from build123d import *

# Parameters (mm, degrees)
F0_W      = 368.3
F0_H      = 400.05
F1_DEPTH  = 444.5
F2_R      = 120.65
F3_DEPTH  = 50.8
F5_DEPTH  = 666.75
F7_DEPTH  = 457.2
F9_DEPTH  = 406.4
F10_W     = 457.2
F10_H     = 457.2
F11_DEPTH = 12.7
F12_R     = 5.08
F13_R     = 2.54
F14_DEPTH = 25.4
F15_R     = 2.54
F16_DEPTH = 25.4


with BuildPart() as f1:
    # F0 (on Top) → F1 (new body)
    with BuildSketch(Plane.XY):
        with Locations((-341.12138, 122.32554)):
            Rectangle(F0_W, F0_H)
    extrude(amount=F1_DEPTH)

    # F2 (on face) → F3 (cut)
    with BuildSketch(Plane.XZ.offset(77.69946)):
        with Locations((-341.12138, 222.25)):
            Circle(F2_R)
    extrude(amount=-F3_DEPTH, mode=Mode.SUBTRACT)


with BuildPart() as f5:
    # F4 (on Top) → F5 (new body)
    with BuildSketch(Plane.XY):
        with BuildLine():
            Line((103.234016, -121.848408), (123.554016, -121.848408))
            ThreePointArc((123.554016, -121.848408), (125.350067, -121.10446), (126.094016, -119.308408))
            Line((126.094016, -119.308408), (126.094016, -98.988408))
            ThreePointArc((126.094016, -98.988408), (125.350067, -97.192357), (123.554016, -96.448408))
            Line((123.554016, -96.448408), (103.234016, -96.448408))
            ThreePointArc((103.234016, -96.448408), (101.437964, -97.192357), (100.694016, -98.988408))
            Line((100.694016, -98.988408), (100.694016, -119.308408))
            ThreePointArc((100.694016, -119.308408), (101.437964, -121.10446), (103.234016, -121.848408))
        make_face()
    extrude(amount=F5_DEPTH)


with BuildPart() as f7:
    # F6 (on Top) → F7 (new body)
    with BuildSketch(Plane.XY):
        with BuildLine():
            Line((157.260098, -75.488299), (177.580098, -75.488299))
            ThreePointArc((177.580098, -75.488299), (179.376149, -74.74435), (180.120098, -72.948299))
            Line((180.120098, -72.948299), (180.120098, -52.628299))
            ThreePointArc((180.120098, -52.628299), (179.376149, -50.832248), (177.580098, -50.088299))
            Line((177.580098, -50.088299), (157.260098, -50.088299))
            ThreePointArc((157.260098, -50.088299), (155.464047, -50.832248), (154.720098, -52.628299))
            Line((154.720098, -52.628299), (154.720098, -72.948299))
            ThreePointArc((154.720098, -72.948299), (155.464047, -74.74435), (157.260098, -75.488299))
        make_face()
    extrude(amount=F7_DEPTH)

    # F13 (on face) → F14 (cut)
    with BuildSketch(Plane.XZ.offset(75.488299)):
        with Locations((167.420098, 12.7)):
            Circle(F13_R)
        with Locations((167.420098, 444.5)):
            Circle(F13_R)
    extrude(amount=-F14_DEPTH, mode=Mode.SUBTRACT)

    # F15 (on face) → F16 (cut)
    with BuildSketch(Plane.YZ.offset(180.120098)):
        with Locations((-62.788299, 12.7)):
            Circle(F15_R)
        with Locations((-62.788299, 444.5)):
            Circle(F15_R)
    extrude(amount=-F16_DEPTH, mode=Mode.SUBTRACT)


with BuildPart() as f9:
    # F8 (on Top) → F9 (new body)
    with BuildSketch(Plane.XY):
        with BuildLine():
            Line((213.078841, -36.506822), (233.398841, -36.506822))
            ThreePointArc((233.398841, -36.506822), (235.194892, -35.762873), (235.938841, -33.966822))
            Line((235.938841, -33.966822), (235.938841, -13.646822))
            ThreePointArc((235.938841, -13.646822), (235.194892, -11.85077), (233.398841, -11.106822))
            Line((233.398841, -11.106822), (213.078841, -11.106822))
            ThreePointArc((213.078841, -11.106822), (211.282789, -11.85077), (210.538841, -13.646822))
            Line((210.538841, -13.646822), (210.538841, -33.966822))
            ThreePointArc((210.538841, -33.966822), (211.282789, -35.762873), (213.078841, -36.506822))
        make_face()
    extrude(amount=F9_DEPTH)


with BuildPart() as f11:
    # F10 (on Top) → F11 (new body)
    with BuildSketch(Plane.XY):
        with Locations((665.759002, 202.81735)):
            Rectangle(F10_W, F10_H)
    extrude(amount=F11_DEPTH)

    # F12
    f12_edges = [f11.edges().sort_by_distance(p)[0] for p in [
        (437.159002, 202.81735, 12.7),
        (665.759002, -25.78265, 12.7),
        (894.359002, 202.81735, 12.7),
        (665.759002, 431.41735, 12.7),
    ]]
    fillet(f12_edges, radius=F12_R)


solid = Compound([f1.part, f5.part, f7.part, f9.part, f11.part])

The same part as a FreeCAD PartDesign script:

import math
import FreeCAD as App
import Part
import Sketcher
Q = App.Units.Quantity


def edges_at(feature, points):
    """Names of the edges that pass closest to the given points."""
    edges = feature.Shape.Edges
    near = lambda p: min(range(len(edges)), key=lambda i: edges[i].distToShape(Part.Vertex(*p))[0])
    return sorted({f"Edge{near(p) + 1}" for p in points})

doc = App.newDocument("Part")
body = doc.addObject("PartDesign::Body", "Body")

# Sketch on XY plane
sketch1 = doc.addObject("Sketcher::SketchObject", "Sketch")
body.addObject(sketch1)
sketch1.AttachmentSupport = (doc.XY_Plane, [""])
sketch1.MapMode = "FlatFace"
sketch1.addGeometry(Part.LineSegment(App.Vector(-525.27138, 322.35054, 0), App.Vector(-525.27138, -77.69946, 0)), False)
sketch1.addGeometry(Part.LineSegment(App.Vector(-525.27138, -77.69946, 0), App.Vector(-156.97138, -77.69946, 0)), False)
sketch1.addGeometry(Part.LineSegment(App.Vector(-156.97138, -77.69946, 0), App.Vector(-156.97138, 322.35054, 0)), False)
sketch1.addGeometry(Part.LineSegment(App.Vector(-156.97138, 322.35054, 0), App.Vector(-525.27138, 322.35054, 0)), False)
sketch1.addConstraint(Sketcher.Constraint("Coincident", 0, 2, 1, 1))
sketch1.addConstraint(Sketcher.Constraint("Coincident", 1, 2, 2, 1))
sketch1.addConstraint(Sketcher.Constraint("Coincident", 2, 2, 3, 1))
sketch1.addConstraint(Sketcher.Constraint("Coincident", 3, 2, 0, 1))
sketch1.addConstraint(Sketcher.Constraint("Vertical", 0))
sketch1.addConstraint(Sketcher.Constraint("Horizontal", 1))
sketch1.addConstraint(Sketcher.Constraint("Vertical", 2))
sketch1.addConstraint(Sketcher.Constraint("Horizontal", 3))
sketch1.addConstraint(Sketcher.Constraint("DistanceX", 1, 1, 1, 2, Q("14.5 in")))
sketch1.addConstraint(Sketcher.Constraint("DistanceY", 0, 2, 0, 1, Q("15.75 in")))
sketch1.addConstraint(Sketcher.Constraint("DistanceX", 0, 2, -1, 1, Q("525.27138 mm")))
sketch1.addConstraint(Sketcher.Constraint("DistanceY", 0, 2, -1, 1, Q("77.69946 mm")))
pad1 = doc.addObject("PartDesign::Pad", "Pad")
body.addObject(pad1)
pad1.Profile = sketch1
pad1.Length = Q("17.5 in")

# Sketch on XZ plane
sketch2 = doc.addObject("Sketcher::SketchObject", "Sketch001")
body.addObject(sketch2)
sketch2.AttachmentSupport = (doc.XZ_Plane, [""])
sketch2.MapMode = "FlatFace"
sketch2.AttachmentOffset = App.Placement(App.Vector(0, 0, 77.69946), App.Rotation())
sketch2.addGeometry(Part.Circle(App.Vector(-341.12138, 222.25, 0), App.Vector(0, 0, 1), 120.65), False)
sketch2.addConstraint(Sketcher.Constraint("Diameter", 0, Q("9.5 in")))
sketch2.addConstraint(Sketcher.Constraint("DistanceY", -1, 1, 0, 3, Q("8.75 in")))
sketch2.addConstraint(Sketcher.Constraint("DistanceX", 0, 3, -1, 1, Q("341.12138 mm")))
pocket1 = doc.addObject("PartDesign::Pocket", "Pocket")
body.addObject(pocket1)
pocket1.Profile = sketch2
pocket1.Length = Q("2 in")
body2 = doc.addObject("PartDesign::Body", "Body001")

# Sketch on XY plane
sketch3 = doc.addObject("Sketcher::SketchObject", "Sketch002")
body2.addObject(sketch3)
sketch3.AttachmentSupport = (doc.getObject("XY_Plane001"), [""])
sketch3.MapMode = "FlatFace"
sketch3.addGeometry(Part.LineSegment(App.Vector(103.234016, -121.848408, 0), App.Vector(123.554016, -121.848408, 0)), False)
sketch3.addGeometry(Part.ArcOfCircle(Part.Circle(App.Vector(123.554017, -119.308409, 0), App.Vector(0, 0, 1), 2.539999), math.radians(-90.000021), math.radians(0.000021)), False)
sketch3.addGeometry(Part.LineSegment(App.Vector(126.094016, -119.308408, 0), App.Vector(126.094016, -98.988408, 0)), False)
sketch3.addGeometry(Part.ArcOfCircle(Part.Circle(App.Vector(123.554015, -98.988409, 0), App.Vector(0, 0, 1), 2.540001), math.radians(0.000017), math.radians(89.999983)), False)
sketch3.addGeometry(Part.LineSegment(App.Vector(123.554016, -96.448408, 0), App.Vector(103.234016, -96.448408, 0)), False)
sketch3.addGeometry(Part.ArcOfCircle(Part.Circle(App.Vector(103.234015, -98.988407, 0), App.Vector(0, 0, 1), 2.539999), math.radians(89.999979), math.radians(180.000021)), False)
sketch3.addGeometry(Part.LineSegment(App.Vector(100.694016, -98.988408, 0), App.Vector(100.694016, -119.308408, 0)), False)
sketch3.addGeometry(Part.ArcOfCircle(Part.Circle(App.Vector(103.234013, -119.308411, 0), App.Vector(0, 0, 1), 2.539997), math.radians(179.99994), math.radians(270.00006)), False)
sketch3.addConstraint(Sketcher.Constraint("Tangent", 0, 2, 1, 1))
sketch3.addConstraint(Sketcher.Constraint("Tangent", 1, 2, 2, 1))
sketch3.addConstraint(Sketcher.Constraint("Tangent", 2, 2, 3, 1))
sketch3.addConstraint(Sketcher.Constraint("Tangent", 3, 2, 4, 1))
sketch3.addConstraint(Sketcher.Constraint("Tangent", 4, 2, 5, 1))
sketch3.addConstraint(Sketcher.Constraint("Tangent", 5, 2, 6, 1))
sketch3.addConstraint(Sketcher.Constraint("Tangent", 6, 2, 7, 1))
sketch3.addConstraint(Sketcher.Constraint("Tangent", 7, 2, 0, 1))
sketch3.addConstraint(Sketcher.Constraint("Horizontal", 0))
sketch3.addConstraint(Sketcher.Constraint("Vertical", 2))
sketch3.addConstraint(Sketcher.Constraint("Horizontal", 4))
sketch3.addConstraint(Sketcher.Constraint("Vertical", 6))
sketch3.addConstraint(Sketcher.Constraint("Equal", 1, 3))
sketch3.addConstraint(Sketcher.Constraint("Equal", 3, 5))
sketch3.addConstraint(Sketcher.Constraint("Equal", 5, 7))
sketch3.addConstraint(Sketcher.Constraint("Equal", 4, 2))
sketch3.addConstraint(Sketcher.Constraint("Radius", 1, Q("0.1 in")))
sketch3.addConstraint(Sketcher.Constraint("DistanceX", 0, 1, 0, 2, Q("0.8 in")))
sketch3.addConstraint(Sketcher.Constraint("DistanceY", 1, 3, -1, 1, Q("119.308409 mm")))
sketch3.addConstraint(Sketcher.Constraint("DistanceX", -1, 1, 1, 3, Q("123.554017 mm")))
pad2 = doc.addObject("PartDesign::Pad", "Pad001")
body2.addObject(pad2)
pad2.Profile = sketch3
pad2.Length = Q("26.25 in")
body3 = doc.addObject("PartDesign::Body", "Body002")

# Sketch on XY plane
sketch4 = doc.addObject("Sketcher::SketchObject", "Sketch003")
body3.addObject(sketch4)
sketch4.AttachmentSupport = (doc.getObject("XY_Plane002"), [""])
sketch4.MapMode = "FlatFace"
sketch4.addGeometry(Part.LineSegment(App.Vector(157.260098, -75.488299, 0), App.Vector(177.580098, -75.488299, 0)), False)
sketch4.addGeometry(Part.ArcOfCircle(Part.Circle(App.Vector(177.580097, -72.948298, 0), App.Vector(0, 0, 1), 2.540001), math.radians(-89.999983), math.radians(-0.000017)), False)
sketch4.addGeometry(Part.LineSegment(App.Vector(180.120098, -72.948299, 0), App.Vector(180.120098, -52.628299, 0)), False)
sketch4.addGeometry(Part.ArcOfCircle(Part.Circle(App.Vector(177.580097, -52.6283, 0), App.Vector(0, 0, 1), 2.540001), math.radians(0.000017), math.radians(89.999983)), False)
sketch4.addGeometry(Part.LineSegment(App.Vector(177.580098, -50.088299, 0), App.Vector(157.260098, -50.088299, 0)), False)
sketch4.addGeometry(Part.ArcOfCircle(Part.Circle(App.Vector(157.260099, -52.6283, 0), App.Vector(0, 0, 1), 2.540001), math.radians(90.000017), math.radians(179.999983)), False)
sketch4.addGeometry(Part.LineSegment(App.Vector(154.720098, -52.628299, 0), App.Vector(154.720098, -72.948299, 0)), False)
sketch4.addGeometry(Part.ArcOfCircle(Part.Circle(App.Vector(157.260099, -72.948298, 0), App.Vector(0, 0, 1), 2.540001), math.radians(-179.999983), math.radians(-90.000017)), False)
sketch4.addConstraint(Sketcher.Constraint("Tangent", 0, 2, 1, 1))
sketch4.addConstraint(Sketcher.Constraint("Tangent", 1, 2, 2, 1))
sketch4.addConstraint(Sketcher.Constraint("Tangent", 2, 2, 3, 1))
sketch4.addConstraint(Sketcher.Constraint("Tangent", 3, 2, 4, 1))
sketch4.addConstraint(Sketcher.Constraint("Tangent", 4, 2, 5, 1))
sketch4.addConstraint(Sketcher.Constraint("Tangent", 5, 2, 6, 1))
sketch4.addConstraint(Sketcher.Constraint("Tangent", 6, 2, 7, 1))
sketch4.addConstraint(Sketcher.Constraint("Tangent", 7, 2, 0, 1))
sketch4.addConstraint(Sketcher.Constraint("Horizontal", 0))
sketch4.addConstraint(Sketcher.Constraint("Vertical", 2))
sketch4.addConstraint(Sketcher.Constraint("Horizontal", 4))
sketch4.addConstraint(Sketcher.Constraint("Vertical", 6))
sketch4.addConstraint(Sketcher.Constraint("Equal", 1, 3))
sketch4.addConstraint(Sketcher.Constraint("Equal", 3, 5))
sketch4.addConstraint(Sketcher.Constraint("Equal", 5, 7))
sketch4.addConstraint(Sketcher.Constraint("Equal", 4, 2))
sketch4.addConstraint(Sketcher.Constraint("Radius", 1, Q("0.1 in")))
sketch4.addConstraint(Sketcher.Constraint("DistanceX", 0, 1, 0, 2, Q("0.8 in")))
sketch4.addConstraint(Sketcher.Constraint("DistanceY", 1, 3, -1, 1, Q("72.948298 mm")))
sketch4.addConstraint(Sketcher.Constraint("DistanceX", -1, 1, 5, 3, Q("157.260099 mm")))
pad3 = doc.addObject("PartDesign::Pad", "Pad002")
body3.addObject(pad3)
pad3.Profile = sketch4
pad3.Length = Q("18 in")

# Sketch on XZ plane
sketch5 = doc.addObject("Sketcher::SketchObject", "Sketch004")
body3.addObject(sketch5)
sketch5.AttachmentSupport = (doc.getObject("XZ_Plane002"), [""])
sketch5.MapMode = "FlatFace"
sketch5.AttachmentOffset = App.Placement(App.Vector(0, 0, 75.488299), App.Rotation())
sketch5.addGeometry(Part.Circle(App.Vector(167.420098, 12.7, 0), App.Vector(0, 0, 1), 2.54), False)
sketch5.addGeometry(Part.Circle(App.Vector(167.420098, 444.5, 0), App.Vector(0, 0, 1), 2.54), False)
sketch5.addConstraint(Sketcher.Constraint("Equal", 0, 1))
sketch5.addConstraint(Sketcher.Constraint("Vertical", 0, 3, 1, 3))
sketch5.addConstraint(Sketcher.Constraint("Diameter", 0, Q("0.2 in")))
sketch5.addConstraint(Sketcher.Constraint("DistanceY", 0, 3, 1, 3, Q("17 in")))
sketch5.addConstraint(Sketcher.Constraint("DistanceY", -1, 1, 0, 3, Q("0.5 in")))
sketch5.addConstraint(Sketcher.Constraint("DistanceX", -1, 1, 0, 3, Q("167.420098 mm")))
pocket2 = doc.addObject("PartDesign::Pocket", "Pocket001")
body3.addObject(pocket2)
pocket2.Profile = sketch5
pocket2.Length = Q("1 in")

# Sketch on YZ plane
sketch6 = doc.addObject("Sketcher::SketchObject", "Sketch005")
body3.addObject(sketch6)
sketch6.AttachmentSupport = (doc.getObject("YZ_Plane002"), [""])
sketch6.MapMode = "FlatFace"
sketch6.AttachmentOffset = App.Placement(App.Vector(0, 0, 180.120098), App.Rotation())
sketch6.addGeometry(Part.Circle(App.Vector(-62.788299, 12.7, 0), App.Vector(0, 0, 1), 2.54), False)
sketch6.addGeometry(Part.Circle(App.Vector(-62.788299, 444.5, 0), App.Vector(0, 0, 1), 2.54), False)
sketch6.addConstraint(Sketcher.Constraint("Equal", 0, 1))
sketch6.addConstraint(Sketcher.Constraint("Vertical", 0, 3, 1, 3))
sketch6.addConstraint(Sketcher.Constraint("Diameter", 0, Q("0.2 in")))
sketch6.addConstraint(Sketcher.Constraint("DistanceY", 0, 3, 1, 3, Q("17 in")))
sketch6.addConstraint(Sketcher.Constraint("DistanceY", -1, 1, 0, 3, Q("0.5 in")))
sketch6.addConstraint(Sketcher.Constraint("DistanceX", 0, 3, -1, 1, Q("62.788299 mm")))
pocket3 = doc.addObject("PartDesign::Pocket", "Pocket002")
body3.addObject(pocket3)
pocket3.Profile = sketch6
pocket3.Length = Q("1 in")
body4 = doc.addObject("PartDesign::Body", "Body003")

# Sketch on XY plane
sketch7 = doc.addObject("Sketcher::SketchObject", "Sketch006")
body4.addObject(sketch7)
sketch7.AttachmentSupport = (doc.getObject("XY_Plane003"), [""])
sketch7.MapMode = "FlatFace"
sketch7.addGeometry(Part.LineSegment(App.Vector(213.078841, -36.506822, 0), App.Vector(233.398841, -36.506822, 0)), False)
sketch7.addGeometry(Part.ArcOfCircle(Part.Circle(App.Vector(233.39884, -33.966821, 0), App.Vector(0, 0, 1), 2.540001), math.radians(-89.999983), math.radians(-0.000017)), False)
sketch7.addGeometry(Part.LineSegment(App.Vector(235.938841, -33.966822, 0), App.Vector(235.938841, -13.646822, 0)), False)
sketch7.addGeometry(Part.ArcOfCircle(Part.Circle(App.Vector(233.398842, -13.646821, 0), App.Vector(0, 0, 1), 2.539999), math.radians(-0.000021), math.radians(90.000021)), False)
sketch7.addGeometry(Part.LineSegment(App.Vector(233.398841, -11.106822, 0), App.Vector(213.078841, -11.106822, 0)), False)
sketch7.addGeometry(Part.ArcOfCircle(Part.Circle(App.Vector(213.078838, -13.646819, 0), App.Vector(0, 0, 1), 2.539997), math.radians(89.99994), math.radians(180.00006)), False)
sketch7.addGeometry(Part.LineSegment(App.Vector(210.538841, -13.646822, 0), App.Vector(210.538841, -33.966822, 0)), False)
sketch7.addGeometry(Part.ArcOfCircle(Part.Circle(App.Vector(213.07884, -33.966823, 0), App.Vector(0, 0, 1), 2.539999), math.radians(179.999979), math.radians(270.000021)), False)
sketch7.addConstraint(Sketcher.Constraint("Tangent", 0, 2, 1, 1))
sketch7.addConstraint(Sketcher.Constraint("Tangent", 1, 2, 2, 1))
sketch7.addConstraint(Sketcher.Constraint("Tangent", 2, 2, 3, 1))
sketch7.addConstraint(Sketcher.Constraint("Tangent", 3, 2, 4, 1))
sketch7.addConstraint(Sketcher.Constraint("Tangent", 4, 2, 5, 1))
sketch7.addConstraint(Sketcher.Constraint("Tangent", 5, 2, 6, 1))
sketch7.addConstraint(Sketcher.Constraint("Tangent", 6, 2, 7, 1))
sketch7.addConstraint(Sketcher.Constraint("Tangent", 7, 2, 0, 1))
sketch7.addConstraint(Sketcher.Constraint("Horizontal", 0))
sketch7.addConstraint(Sketcher.Constraint("Vertical", 2))
sketch7.addConstraint(Sketcher.Constraint("Horizontal", 4))
sketch7.addConstraint(Sketcher.Constraint("Vertical", 6))
sketch7.addConstraint(Sketcher.Constraint("Equal", 1, 3))
sketch7.addConstraint(Sketcher.Constraint("Equal", 3, 5))
sketch7.addConstraint(Sketcher.Constraint("Equal", 5, 7))
sketch7.addConstraint(Sketcher.Constraint("Equal", 4, 2))
sketch7.addConstraint(Sketcher.Constraint("Radius", 1, Q("0.1 in")))
sketch7.addConstraint(Sketcher.Constraint("DistanceX", 0, 1, 0, 2, Q("0.8 in")))
sketch7.addConstraint(Sketcher.Constraint("DistanceX", -1, 1, 1, 3, Q("233.39884 mm")))
sketch7.addConstraint(Sketcher.Constraint("DistanceY", 1, 3, -1, 1, Q("33.966821 mm")))
pad4 = doc.addObject("PartDesign::Pad", "Pad003")
body4.addObject(pad4)
pad4.Profile = sketch7
pad4.Length = Q("16 in")
body5 = doc.addObject("PartDesign::Body", "Body004")

# Sketch on XY plane
sketch8 = doc.addObject("Sketcher::SketchObject", "Sketch007")
body5.addObject(sketch8)
sketch8.AttachmentSupport = (doc.getObject("XY_Plane004"), [""])
sketch8.MapMode = "FlatFace"
sketch8.addGeometry(Part.LineSegment(App.Vector(437.159002, 431.41735, 0), App.Vector(437.159002, -25.78265, 0)), False)
sketch8.addGeometry(Part.LineSegment(App.Vector(437.159002, -25.78265, 0), App.Vector(894.359002, -25.78265, 0)), False)
sketch8.addGeometry(Part.LineSegment(App.Vector(894.359002, -25.78265, 0), App.Vector(894.359002, 431.41735, 0)), False)
sketch8.addGeometry(Part.LineSegment(App.Vector(894.359002, 431.41735, 0), App.Vector(437.159002, 431.41735, 0)), False)
sketch8.addConstraint(Sketcher.Constraint("Coincident", 0, 2, 1, 1))
sketch8.addConstraint(Sketcher.Constraint("Coincident", 1, 2, 2, 1))
sketch8.addConstraint(Sketcher.Constraint("Coincident", 2, 2, 3, 1))
sketch8.addConstraint(Sketcher.Constraint("Coincident", 3, 2, 0, 1))
sketch8.addConstraint(Sketcher.Constraint("Vertical", 0))
sketch8.addConstraint(Sketcher.Constraint("Horizontal", 1))
sketch8.addConstraint(Sketcher.Constraint("Vertical", 2))
sketch8.addConstraint(Sketcher.Constraint("Horizontal", 3))
sketch8.addConstraint(Sketcher.Constraint("Equal", 3, 0))
sketch8.addConstraint(Sketcher.Constraint("DistanceX", 1, 1, 1, 2, Q("18 in")))
sketch8.addConstraint(Sketcher.Constraint("DistanceX", -1, 1, 0, 2, Q("437.159002 mm")))
sketch8.addConstraint(Sketcher.Constraint("DistanceY", 0, 2, -1, 1, Q("25.78265 mm")))
pad5 = doc.addObject("PartDesign::Pad", "Pad004")
body5.addObject(pad5)
pad5.Profile = sketch8
pad5.Length = Q("0.5 in")
doc.recompute()

fillet = doc.addObject("PartDesign::Fillet", "Fillet")
body5.addObject(fillet)
fillet.Base = (pad5, edges_at(pad5, [
    (437.159, 202.817, 12.7),
    (665.759, -25.783, 12.7),
    (894.359, 202.817, 12.7),
    (665.759, 431.417, 12.7),
]))
fillet.Radius = Q("0.2 in")

doc.recompute()
